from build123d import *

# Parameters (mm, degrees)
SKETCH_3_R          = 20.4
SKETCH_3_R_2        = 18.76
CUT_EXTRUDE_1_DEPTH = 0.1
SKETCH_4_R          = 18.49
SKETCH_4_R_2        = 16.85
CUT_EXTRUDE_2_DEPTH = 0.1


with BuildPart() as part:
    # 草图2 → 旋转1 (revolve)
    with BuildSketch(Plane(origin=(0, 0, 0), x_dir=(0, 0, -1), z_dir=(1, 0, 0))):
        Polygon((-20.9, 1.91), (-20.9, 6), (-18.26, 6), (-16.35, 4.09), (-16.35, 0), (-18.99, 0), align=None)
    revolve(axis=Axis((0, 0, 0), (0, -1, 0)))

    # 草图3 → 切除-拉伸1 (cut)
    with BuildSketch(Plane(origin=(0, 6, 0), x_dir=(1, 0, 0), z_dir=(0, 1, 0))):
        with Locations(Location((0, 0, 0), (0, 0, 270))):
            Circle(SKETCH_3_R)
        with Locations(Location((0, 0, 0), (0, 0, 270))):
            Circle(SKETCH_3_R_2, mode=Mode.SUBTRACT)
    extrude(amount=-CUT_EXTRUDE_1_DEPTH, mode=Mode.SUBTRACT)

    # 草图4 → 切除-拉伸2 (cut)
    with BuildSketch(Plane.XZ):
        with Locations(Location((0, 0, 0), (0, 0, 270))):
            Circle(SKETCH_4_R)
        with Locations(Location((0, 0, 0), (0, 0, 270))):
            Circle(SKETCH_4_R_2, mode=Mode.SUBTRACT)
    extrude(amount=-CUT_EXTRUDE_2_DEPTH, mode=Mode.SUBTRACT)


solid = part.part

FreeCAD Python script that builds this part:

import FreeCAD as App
import Part
import Sketcher

V = App.Vector
Q = App.Units.Quantity


def add_polygon(sketch, points):
    """Adds a closed chain of lines whose ends are joined by coincident constraints."""
    first, n = sketch.GeometryCount, len(points)
    for a, b in zip(points, points[1:] + points[:1]):
        sketch.addGeometry(Part.LineSegment(App.Vector(*a, 0), App.Vector(*b, 0)), False)
    for i in range(n):
        sketch.addConstraint(Sketcher.Constraint("Coincident", first + i, 2, first + (i + 1) % n, 1))

doc = App.newDocument("Part")
body = doc.addObject("PartDesign::Body", "Body")

sketch1 = doc.addObject("Sketcher::SketchObject", "Sketch")
body.addObject(sketch1)
sketch1.AttachmentSupport = (doc.YZ_Plane, [""])
sketch1.MapMode = "FlatFace"
add_polygon(sketch1, [(6, 20.9), (1.9, 20.9), (0, 19), (0, 16.4), (4.1, 16.4), (6, 18.3)])
sketch1.addConstraint(Sketcher.Constraint("Horizontal", 0))
sketch1.addConstraint(Sketcher.Constraint("Vertical", 2))
sketch1.addConstraint(Sketcher.Constraint("Horizontal", 3))
sketch1.addConstraint(Sketcher.Constraint("Vertical", 5))
sketch1.addConstraint(Sketcher.Constraint("PointOnObject", 1, 2, -2))
sketch1.addConstraint(Sketcher.Constraint("Parallel", 1, 4))
sketch1.addConstraint(Sketcher.Constraint("Equal", 0, 3))
sketch1.addConstraint(Sketcher.Constraint("Angle", 1, Q("-135 deg")))
sketch1.addConstraint(Sketcher.Constraint("DistanceX", -1, 1, 4, 2, 6.0))
sketch1.addConstraint(Sketcher.Constraint("DistanceX", 0, 2, 0, 1, 4.09))
sketch1.addConstraint(Sketcher.Constraint("DistanceY", 2, 2, 2, 1, 2.64))
sketch1.addConstraint(Sketcher.Constraint("DistanceY", -1, 1, 0, 2, 20.9))
revolution = doc.addObject("PartDesign::Revolution", "Revolution")
body.addObject(revolution)
revolution.Profile = sketch1
revolution.ReferenceAxis = (sketch1, ["H_Axis"])
revolution.Angle = 360

sketch2 = doc.addObject("Sketcher::SketchObject", "Sketch001")
body.addObject(sketch2)
sketch2.AttachmentSupport = (doc.XZ_Plane, [""])
sketch2.MapMode = "FlatFace"
sketch2.AttachmentOffset = App.Placement(V(0, 0, -6), App.Rotation())
sketch2.addGeometry(Part.Circle(V(0, 0, 0), V(0, 0, 1), 20), False)
sketch2.addGeometry(Part.Circle(V(0, 0, 0), V(0, 0, 1), 19), False)
sketch2.addConstraint(Sketcher.Constraint("Coincident", 0, 3, -1, 1))
sketch2.addConstraint(Sketcher.Constraint("Coincident", 1, 3, -1, 1))
sketch2.addConstraint(Sketcher.Constraint("Diameter", 0, 40.8))
sketch2.addConstraint(Sketcher.Constraint("Diameter", 1, 37.52))
pocket1 = doc.addObject("PartDesign::Pocket", "Pocket")
body.addObject(pocket1)
pocket1.Profile = sketch2
pocket1.Length = 0.1
pocket1.Reversed = True

sketch3 = doc.addObject("Sketcher::SketchObject", "Sketch002")
body.addObject(sketch3)
sketch3.AttachmentSupport = (doc.XZ_Plane, [""])
sketch3.MapMode = "FlatFace"
sketch3.addGeometry(Part.Circle(V(0, 0, 0), V(0, 0, 1), 18), False)
sketch3.addGeometry(Part.Circle(V(0, 0, 0), V(0, 0, 1), 17), False)
sketch3.addConstraint(Sketcher.Constraint("Coincident", 0, 3, -1, 1))
sketch3.addConstraint(Sketcher.Constraint("Coincident", 1, 3, -1, 1))
sketch3.addConstraint(Sketcher.Constraint("Diameter", 1, 33.7))
sketch3.addConstraint(Sketcher.Constraint("Diameter", 0, 36.98))
pocket2 = doc.addObject("PartDesign::Pocket", "Pocket001")
body.addObject(pocket2)
pocket2.Profile = sketch3
pocket2.Length = 0.1

doc.recompute()
